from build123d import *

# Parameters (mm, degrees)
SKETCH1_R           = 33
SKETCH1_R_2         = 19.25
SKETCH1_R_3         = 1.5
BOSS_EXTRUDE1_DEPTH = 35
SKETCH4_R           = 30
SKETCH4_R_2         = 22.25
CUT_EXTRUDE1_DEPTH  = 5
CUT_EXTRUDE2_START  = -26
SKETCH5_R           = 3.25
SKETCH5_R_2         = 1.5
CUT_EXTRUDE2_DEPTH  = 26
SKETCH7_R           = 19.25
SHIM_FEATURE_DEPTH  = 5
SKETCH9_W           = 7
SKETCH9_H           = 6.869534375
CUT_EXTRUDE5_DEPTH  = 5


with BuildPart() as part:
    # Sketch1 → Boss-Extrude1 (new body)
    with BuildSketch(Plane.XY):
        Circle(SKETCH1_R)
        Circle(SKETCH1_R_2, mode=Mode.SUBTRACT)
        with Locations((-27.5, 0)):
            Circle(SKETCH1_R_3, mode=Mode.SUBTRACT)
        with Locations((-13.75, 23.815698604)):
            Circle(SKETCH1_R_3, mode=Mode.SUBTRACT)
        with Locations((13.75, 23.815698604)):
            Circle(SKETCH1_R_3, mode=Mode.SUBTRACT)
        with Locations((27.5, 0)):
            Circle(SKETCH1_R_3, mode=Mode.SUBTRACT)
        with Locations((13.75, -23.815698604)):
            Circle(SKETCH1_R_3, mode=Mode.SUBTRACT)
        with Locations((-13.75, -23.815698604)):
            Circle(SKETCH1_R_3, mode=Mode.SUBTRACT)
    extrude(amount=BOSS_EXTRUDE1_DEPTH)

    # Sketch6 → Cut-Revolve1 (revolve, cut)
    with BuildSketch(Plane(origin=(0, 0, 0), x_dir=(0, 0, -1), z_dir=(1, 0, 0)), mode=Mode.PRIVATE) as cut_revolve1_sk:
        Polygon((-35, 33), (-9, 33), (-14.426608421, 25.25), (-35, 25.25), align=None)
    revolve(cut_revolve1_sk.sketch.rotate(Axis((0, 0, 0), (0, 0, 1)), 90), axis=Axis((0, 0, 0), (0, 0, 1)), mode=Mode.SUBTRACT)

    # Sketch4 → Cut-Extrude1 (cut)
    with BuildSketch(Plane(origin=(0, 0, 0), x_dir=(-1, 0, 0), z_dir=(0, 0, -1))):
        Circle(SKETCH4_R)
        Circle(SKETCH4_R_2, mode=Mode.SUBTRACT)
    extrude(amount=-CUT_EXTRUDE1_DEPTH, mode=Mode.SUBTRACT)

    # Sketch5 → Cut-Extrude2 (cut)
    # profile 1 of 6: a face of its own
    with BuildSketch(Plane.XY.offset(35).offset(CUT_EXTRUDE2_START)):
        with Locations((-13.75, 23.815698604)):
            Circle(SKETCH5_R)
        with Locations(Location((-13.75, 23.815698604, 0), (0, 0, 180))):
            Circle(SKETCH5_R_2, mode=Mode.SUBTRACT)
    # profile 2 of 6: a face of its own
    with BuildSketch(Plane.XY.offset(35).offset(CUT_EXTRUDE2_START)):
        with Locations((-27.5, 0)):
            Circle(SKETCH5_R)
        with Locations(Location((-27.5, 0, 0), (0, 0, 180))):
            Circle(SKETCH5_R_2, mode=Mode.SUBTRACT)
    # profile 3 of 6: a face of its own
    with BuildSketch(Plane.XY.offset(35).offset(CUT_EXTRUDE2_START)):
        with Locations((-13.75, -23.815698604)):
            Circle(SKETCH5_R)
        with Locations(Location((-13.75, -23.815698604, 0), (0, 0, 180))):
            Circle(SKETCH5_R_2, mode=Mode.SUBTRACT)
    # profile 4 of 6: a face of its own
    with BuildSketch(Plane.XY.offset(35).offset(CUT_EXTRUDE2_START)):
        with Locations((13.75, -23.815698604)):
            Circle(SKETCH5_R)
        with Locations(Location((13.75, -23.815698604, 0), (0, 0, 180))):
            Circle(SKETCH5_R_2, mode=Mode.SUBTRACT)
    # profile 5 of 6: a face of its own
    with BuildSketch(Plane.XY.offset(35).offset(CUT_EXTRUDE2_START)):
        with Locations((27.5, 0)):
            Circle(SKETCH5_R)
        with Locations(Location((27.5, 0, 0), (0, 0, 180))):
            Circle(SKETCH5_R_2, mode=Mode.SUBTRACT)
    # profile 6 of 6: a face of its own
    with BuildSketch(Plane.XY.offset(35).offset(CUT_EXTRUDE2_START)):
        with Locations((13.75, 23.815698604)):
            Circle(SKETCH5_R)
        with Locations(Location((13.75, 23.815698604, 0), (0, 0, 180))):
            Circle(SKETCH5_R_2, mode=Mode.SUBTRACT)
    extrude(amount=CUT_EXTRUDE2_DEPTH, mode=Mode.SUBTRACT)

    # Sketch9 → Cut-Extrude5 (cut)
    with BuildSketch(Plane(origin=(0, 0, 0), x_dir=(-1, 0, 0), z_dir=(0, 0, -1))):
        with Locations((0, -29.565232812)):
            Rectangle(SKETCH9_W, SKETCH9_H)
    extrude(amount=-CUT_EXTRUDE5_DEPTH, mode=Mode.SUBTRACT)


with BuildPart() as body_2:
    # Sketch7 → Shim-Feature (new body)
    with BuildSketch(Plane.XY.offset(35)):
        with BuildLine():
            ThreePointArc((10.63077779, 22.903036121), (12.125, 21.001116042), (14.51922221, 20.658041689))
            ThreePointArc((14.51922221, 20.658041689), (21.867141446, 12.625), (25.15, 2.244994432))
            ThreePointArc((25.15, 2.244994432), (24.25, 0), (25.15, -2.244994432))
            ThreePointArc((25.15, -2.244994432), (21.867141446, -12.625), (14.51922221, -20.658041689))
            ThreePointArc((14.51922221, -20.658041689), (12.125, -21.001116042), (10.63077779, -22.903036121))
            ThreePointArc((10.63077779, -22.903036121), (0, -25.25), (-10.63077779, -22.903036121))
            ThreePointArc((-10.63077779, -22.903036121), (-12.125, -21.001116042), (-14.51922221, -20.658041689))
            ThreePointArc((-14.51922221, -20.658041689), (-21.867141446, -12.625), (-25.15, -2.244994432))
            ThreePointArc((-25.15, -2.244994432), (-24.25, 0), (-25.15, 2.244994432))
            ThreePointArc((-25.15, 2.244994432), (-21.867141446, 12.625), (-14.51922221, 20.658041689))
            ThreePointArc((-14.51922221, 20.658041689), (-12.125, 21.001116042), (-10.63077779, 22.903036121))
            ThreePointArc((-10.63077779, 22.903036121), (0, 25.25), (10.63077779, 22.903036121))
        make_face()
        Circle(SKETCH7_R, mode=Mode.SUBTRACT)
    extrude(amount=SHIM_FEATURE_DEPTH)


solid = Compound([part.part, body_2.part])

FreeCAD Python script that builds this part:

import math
import FreeCAD as App
import Part
import Sketcher
Q = App.Units.Quantity

doc = App.newDocument("Part")
body = doc.addObject("PartDesign::Body", "Body")

# Sketch on XY plane
sketch1 = doc.addObject("Sketcher::SketchObject", "Sketch")
body.addObject(sketch1)
sketch1.AttachmentSupport = (doc.XY_Plane, [""])
sketch1.MapMode = "FlatFace"
sketch1.addGeometry([
    Part.Circle(App.Vector(0, 0, 0), App.Vector(0, 0, 1), 33),  # 0
    Part.Circle(App.Vector(-13.75, -23.815699, 0), App.Vector(0, 0, 1), 1.5),  # 1
    Part.Circle(App.Vector(13.75, -23.815699, 0), App.Vector(0, 0, 1), 1.5),  # 2
    Part.Circle(App.Vector(-27.5, 0, 0), App.Vector(0, 0, 1), 1.5),  # 3
    Part.Circle(App.Vector(-13.75, 23.815699, 0), App.Vector(0, 0, 1), 1.5),  # 4
    Part.Circle(App.Vector(0, 0, 0), App.Vector(0, 0, 1), 19.25),  # 5
    Part.Circle(App.Vector(27.5, 0, 0), App.Vector(0, 0, 1), 1.5),  # 6
    Part.Circle(App.Vector(13.75, 23.815699, 0), App.Vector(0, 0, 1), 1.5),  # 7
], False)
sketch1.addConstraint([
    Sketcher.Constraint("Coincident", 0, 3, -1, 1),
    Sketcher.Constraint("Coincident", 5, 3, -1, 1),
    Sketcher.Constraint("Equal", 1, 2),
    Sketcher.Constraint("Equal", 2, 3),
    Sketcher.Constraint("Equal", 3, 4),
    Sketcher.Constraint("Equal", 4, 6),
    Sketcher.Constraint("Equal", 6, 7),
    Sketcher.Constraint("Symmetric", 2, 3, 4, 3, -1, 1),
    Sketcher.Constraint("Symmetric", 3, 3, 6, 3, -1, 1),
    Sketcher.Constraint("Symmetric", 1, 3, 7, 3, -1, 1),
    Sketcher.Constraint("Symmetric", 1, 3, 2, 3, -2),
    Sketcher.Constraint("PointOnObject", 3, 3, -1),
    Sketcher.Constraint("Diameter", 0, Q("66 mm")),
    Sketcher.Constraint("Diameter", 1, Q("3 mm")),
    Sketcher.Constraint("Diameter", 5, Q("38.5 mm")),
    Sketcher.Constraint("DistanceX", 3, 3, -1, 1, Q("27.5 mm")),
    Sketcher.Constraint("DistanceX", 1, 3, 2, 3, Q("27.5 mm")),
    Sketcher.Constraint("DistanceY", 1, 3, -1, 1, Q("23.815699 mm")),
])
pad1 = doc.addObject("PartDesign::Pad", "Pad")
body.addObject(pad1)
pad1.Profile = sketch1
pad1.Length = 35

# Sketch on YZ plane
sketch2 = doc.addObject("Sketcher::SketchObject", "Sketch001")
body.addObject(sketch2)
sketch2.AttachmentSupport = (doc.YZ_Plane, [""])
sketch2.MapMode = "FlatFace"
sketch2.addGeometry([
    Part.LineSegment(App.Vector(33, 9, 0), App.Vector(33, 35, 0)),
    Part.LineSegment(App.Vector(33, 35, 0), App.Vector(25.25, 35, 0)),
    Part.LineSegment(App.Vector(25.25, 35, 0), App.Vector(25.25, 14.426608, 0)),
    Part.LineSegment(App.Vector(25.25, 14.426608, 0), App.Vector(33, 9, 0)),
], False)
sketch2.addConstraint([
    Sketcher.Constraint("Coincident", 0, 2, 1, 1),
    Sketcher.Constraint("Coincident", 1, 2, 2, 1),
    Sketcher.Constraint("Coincident", 2, 2, 3, 1),
    Sketcher.Constraint("Coincident", 3, 2, 0, 1),
    Sketcher.Constraint("Vertical", 0),
    Sketcher.Constraint("Horizontal", 1),
    Sketcher.Constraint("Vertical", 2),
    Sketcher.Constraint("DistanceY", 0, 1, 0, 2, Q("26 mm")),
    Sketcher.Constraint("Angle", 3, Q("-35 deg")),
    Sketcher.Constraint("DistanceX", -1, 1, 0, 2, Q("33 mm")),
    Sketcher.Constraint("DistanceY", -1, 1, 0, 2, Q("35 mm")),
    Sketcher.Constraint("DistanceX", 1, 2, 1, 1, Q("7.75 mm")),
])
groove = doc.addObject("PartDesign::Groove", "Groove")
body.addObject(groove)
groove.Profile = sketch2
groove.ReferenceAxis = (sketch2, ["V_Axis"])
groove.Angle = 360

# Sketch on XY plane
sketch3 = doc.addObject("Sketcher::SketchObject", "Sketch002")
body.addObject(sketch3)
sketch3.AttachmentSupport = (doc.XY_Plane, [""])
sketch3.MapMode = "FlatFace"
sketch3.addGeometry([
    Part.Circle(App.Vector(0, 0, 0), App.Vector(0, 0, 1), 30),
    Part.Circle(App.Vector(0, 0, 0), App.Vector(0, 0, 1), 22.25),
], False)
sketch3.addConstraint([
    Sketcher.Constraint("Coincident", 0, 3, -1, 1),
    Sketcher.Constraint("Coincident", 1, 3, -1, 1),
    Sketcher.Constraint("Diameter", 0, Q("60 mm")),
    Sketcher.Constraint("Diameter", 1, Q("44.5 mm")),
])
pocket1 = doc.addObject("PartDesign::Pocket", "Pocket")
body.addObject(pocket1)
pocket1.Profile = sketch3
pocket1.Length = 5
pocket1.Reversed = True

# Sketch on XY plane
sketch4 = doc.addObject("Sketcher::SketchObject", "Sketch003")
body.addObject(sketch4)
sketch4.AttachmentSupport = (doc.XY_Plane, [""])
sketch4.MapMode = "FlatFace"
sketch4.AttachmentOffset = App.Placement(App.Vector(0, 0, 9), App.Rotation())
sketch4.addGeometry([
    Part.Circle(App.Vector(-13.75, 23.815699, 0), App.Vector(0, 0, 1), 3.25),  # 0
    Part.Circle(App.Vector(-13.75, 23.815699, 0), App.Vector(0, 0, 1), 1.5),  # 1
    Part.Circle(App.Vector(-27.5, 0, 0), App.Vector(0, 0, 1), 3.25),  # 2
    Part.Circle(App.Vector(-27.5, 0, 0), App.Vector(0, 0, 1), 1.5),  # 3
    Part.Circle(App.Vector(-13.75, -23.815699, 0), App.Vector(0, 0, 1), 3.25),  # 4
    Part.Circle(App.Vector(-13.75, -23.815699, 0), App.Vector(0, 0, 1), 1.5),  # 5
    Part.Circle(App.Vector(13.75, -23.815699, 0), App.Vector(0, 0, 1), 3.25),  # 6
    Part.Circle(App.Vector(13.75, -23.815699, 0), App.Vector(0, 0, 1), 1.5),  # 7
    Part.Circle(App.Vector(27.5, 0, 0), App.Vector(0, 0, 1), 3.25),  # 8
    Part.Circle(App.Vector(27.5, 0, 0), App.Vector(0, 0, 1), 1.5),  # 9
    Part.Circle(App.Vector(13.75, 23.815699, 0), App.Vector(0, 0, 1), 3.25),  # 10
    Part.Circle(App.Vector(13.75, 23.815699, 0), App.Vector(0, 0, 1), 1.5),  # 11
], False)
sketch4.addConstraint([
    Sketcher.Constraint("Coincident", 1, 3, 0, 3),
    Sketcher.Constraint("Coincident", 3, 3, 2, 3),
    Sketcher.Constraint("Coincident", 5, 3, 4, 3),
    Sketcher.Constraint("Coincident", 7, 3, 6, 3),
    Sketcher.Constraint("Coincident", 9, 3, 8, 3),
    Sketcher.Constraint("Coincident", 11, 3, 10, 3),
    Sketcher.Constraint("Equal", 0, 2),
    Sketcher.Constraint("Equal", 1, 3),
    Sketcher.Constraint("Equal", 2, 4),
    Sketcher.Constraint("Equal", 3, 5),
    Sketcher.Constraint("Equal", 4, 6),
    Sketcher.Constraint("Equal", 5, 7),
    Sketcher.Constraint("Equal", 6, 8),
    Sketcher.Constraint("Equal", 7, 9),
    Sketcher.Constraint("Equal", 8, 10),
    Sketcher.Constraint("Equal", 9, 11),
    Sketcher.Constraint("Symmetric", 0, 3, 6, 3, -1, 1),
    Sketcher.Constraint("Symmetric", 2, 3, 8, 3, -1, 1),
    Sketcher.Constraint("Symmetric", 4, 3, 10, 3, -1, 1),
    Sketcher.Constraint("Symmetric", 4, 3, 6, 3, -2),
    Sketcher.Constraint("PointOnObject", 2, 3, -1),
    Sketcher.Constraint("Diameter", 1, Q("3 mm")),
    Sketcher.Constraint("Diameter", 0, Q("6.5 mm")),
    Sketcher.Constraint("DistanceX", 2, 3, -1, 1, Q("27.5 mm")),
    Sketcher.Constraint("DistanceX", 4, 3, 6, 3, Q("27.5 mm")),
    Sketcher.Constraint("DistanceY", -1, 1, 0, 3, Q("23.815699 mm")),
])
pocket2 = doc.addObject("PartDesign::Pocket", "Pocket001")
body.addObject(pocket2)
pocket2.Profile = sketch4
pocket2.Length = 26
pocket2.Reversed = True

# Sketch on XY plane
sketch5 = doc.addObject("Sketcher::SketchObject", "Sketch004")
body.addObject(sketch5)
sketch5.AttachmentSupport = (doc.XY_Plane, [""])
sketch5.MapMode = "FlatFace"
sketch5.addGeometry([
    Part.LineSegment(App.Vector(3.5, -26.130466, 0), App.Vector(3.5, -33, 0)),
    Part.LineSegment(App.Vector(3.5, -33, 0), App.Vector(-3.5, -33, 0)),
    Part.LineSegment(App.Vector(-3.5, -33, 0), App.Vector(-3.5, -26.130466, 0)),
    Part.LineSegment(App.Vector(-3.5, -26.130466, 0), App.Vector(3.5, -26.130466, 0)),
], False)
sketch5.addConstraint([
    Sketcher.Constraint("Coincident", 0, 2, 1, 1),
    Sketcher.Constraint("Coincident", 1, 2, 2, 1),
    Sketcher.Constraint("Coincident", 2, 2, 3, 1),
    Sketcher.Constraint("Coincident", 3, 2, 0, 1),
    Sketcher.Constraint("Vertical", 0),
    Sketcher.Constraint("Horizontal", 1),
    Sketcher.Constraint("Vertical", 2),
    Sketcher.Constraint("Horizontal", 3),
    Sketcher.Constraint("DistanceX", 1, 2, 1, 1, Q("7 mm")),
    Sketcher.Constraint("DistanceY", 0, 2, -1, 1, Q("33 mm")),
    Sketcher.Constraint("DistanceX", -1, 1, 0, 2, Q("3.5 mm")),
    Sketcher.Constraint("DistanceY", 0, 2, 0, 1, Q("6.869534 mm")),
])
pocket3 = doc.addObject("PartDesign::Pocket", "Pocket002")
body.addObject(pocket3)
pocket3.Profile = sketch5
pocket3.Length = 5
pocket3.Reversed = True
body2 = doc.addObject("PartDesign::Body", "Body001")

# Sketch on XY plane
sketch6 = doc.addObject("Sketcher::SketchObject", "Sketch005")
body2.addObject(sketch6)
sketch6.AttachmentSupport = (doc.getObject("XY_Plane001"), [""])
sketch6.MapMode = "FlatFace"
sketch6.AttachmentOffset = App.Placement(App.Vector(0, 0, 35), App.Rotation())
sketch6.addGeometry([
    Part.ArcOfCircle(Part.Circle(App.Vector(13.75, 23.815699, 0), App.Vector(0, 0, 1), 3.25), math.radians(-163.690895), math.radians(-76.309105)),  # 0
    Part.ArcOfCircle(Part.Circle(App.Vector(0, 0, 0), App.Vector(0, 0, 1), 25.25), math.radians(65.100942), math.radians(114.899058)),  # 1
    Part.ArcOfCircle(Part.Circle(App.Vector(-13.75, 23.815699, 0), App.Vector(0, 0, 1), 3.25), math.radians(-103.690895), math.radians(-16.309105)),  # 2
    Part.ArcOfCircle(Part.Circle(App.Vector(0, 0, 0), App.Vector(0, 0, 1), 25.25), math.radians(125.100942), math.radians(174.899058)),  # 3
    Part.ArcOfCircle(Part.Circle(App.Vector(-27.5, 0, 0), App.Vector(0, 0, 1), 3.25), math.radians(-43.690895), math.radians(43.690895)),  # 4
    Part.ArcOfCircle(Part.Circle(App.Vector(0, 0, 0), App.Vector(0, 0, 1), 25.25), math.radians(-174.899058), math.radians(-125.100942)),  # 5
    Part.ArcOfCircle(Part.Circle(App.Vector(-13.75, -23.815699, 0), App.Vector(0, 0, 1), 3.25), math.radians(16.309105), math.radians(103.690895)),  # 6
    Part.ArcOfCircle(Part.Circle(App.Vector(0, 0, 0), App.Vector(0, 0, 1), 25.25), math.radians(-114.899058), math.radians(-65.100942)),  # 7
    Part.ArcOfCircle(Part.Circle(App.Vector(13.75, -23.815699, 0), App.Vector(0, 0, 1), 3.25), math.radians(76.309105), math.radians(163.690895)),  # 8
    Part.ArcOfCircle(Part.Circle(App.Vector(0, 0, 0), App.Vector(0, 0, 1), 25.25), math.radians(-54.899058), math.radians(-5.100942)),  # 9
    Part.ArcOfCircle(Part.Circle(App.Vector(27.5, 0, 0), App.Vector(0, 0, 1), 3.25), math.radians(136.309105), math.radians(223.690895)),  # 10
    Part.ArcOfCircle(Part.Circle(App.Vector(0, 0, 0), App.Vector(0, 0, 1), 25.25), math.radians(5.100942), math.radians(54.899058)),  # 11
    Part.Circle(App.Vector(0, 0, 0), App.Vector(0, 0, 1), 19.25),  # 12
], False)
sketch6.addConstraint([
    Sketcher.Constraint("Coincident", 0, 1, 1, 1),
    Sketcher.Constraint("Coincident", 1, 2, 2, 2),
    Sketcher.Constraint("Coincident", 2, 1, 3, 1),
    Sketcher.Constraint("Coincident", 3, 2, 4, 2),
    Sketcher.Constraint("Coincident", 4, 1, 5, 1),
    Sketcher.Constraint("Coincident", 5, 2, 6, 2),
    Sketcher.Constraint("Coincident", 6, 1, 7, 1),
    Sketcher.Constraint("Coincident", 7, 2, 8, 2),
    Sketcher.Constraint("Coincident", 8, 1, 9, 1),
    Sketcher.Constraint("Coincident", 9, 2, 10, 2),
    Sketcher.Constraint("Coincident", 10, 1, 11, 1),
    Sketcher.Constraint("Coincident", 11, 2, 0, 2),
    Sketcher.Constraint("Coincident", 1, 3, -1, 1),
    Sketcher.Constraint("Coincident", 3, 3, -1, 1),
    Sketcher.Constraint("Coincident", 5, 3, -1, 1),
    Sketcher.Constraint("Coincident", 7, 3, -1, 1),
    Sketcher.Constraint("Coincident", 9, 3, -1, 1),
    Sketcher.Constraint("Coincident", 11, 3, -1, 1),
    Sketcher.Constraint("Coincident", 12, 3, -1, 1),
    Sketcher.Constraint("Equal", 0, 2),
    Sketcher.Constraint("Equal", 1, 3),
    Sketcher.Constraint("Equal", 2, 4),
    Sketcher.Constraint("Equal", 3, 5),
    Sketcher.Constraint("Equal", 4, 6),
    Sketcher.Constraint("Equal", 5, 7),
    Sketcher.Constraint("Equal", 6, 8),
    Sketcher.Constraint("Equal", 7, 9),
    Sketcher.Constraint("Equal", 8, 10),
    Sketcher.Constraint("Equal", 9, 11),
    Sketcher.Constraint("Symmetric", 0, 3, 6, 3, -1, 1),
    Sketcher.Constraint("Symmetric", 2, 3, 8, 3, -1, 1),
    Sketcher.Constraint("Symmetric", 4, 3, 10, 3, -1, 1),
    Sketcher.Constraint("Symmetric", 0, 3, 2, 3, -2),
    Sketcher.Constraint("PointOnObject", 4, 3, -1),
    Sketcher.Constraint("Diameter", 12, Q("38.5 mm")),
    Sketcher.Constraint("Radius", 0, Q("3.25 mm")),
    Sketcher.Constraint("Radius", 1, Q("25.25 mm")),
    Sketcher.Constraint("DistanceX", 4, 3, -1, 1, Q("27.5 mm")),
    Sketcher.Constraint("DistanceX", 2, 3, 0, 3, Q("27.5 mm")),
    Sketcher.Constraint("DistanceY", -1, 1, 0, 3, Q("23.815699 mm")),
])
pad2 = doc.addObject("PartDesign::Pad", "Pad001")
body2.addObject(pad2)
pad2.Profile = sketch6
pad2.Length = 5

doc.recompute()
